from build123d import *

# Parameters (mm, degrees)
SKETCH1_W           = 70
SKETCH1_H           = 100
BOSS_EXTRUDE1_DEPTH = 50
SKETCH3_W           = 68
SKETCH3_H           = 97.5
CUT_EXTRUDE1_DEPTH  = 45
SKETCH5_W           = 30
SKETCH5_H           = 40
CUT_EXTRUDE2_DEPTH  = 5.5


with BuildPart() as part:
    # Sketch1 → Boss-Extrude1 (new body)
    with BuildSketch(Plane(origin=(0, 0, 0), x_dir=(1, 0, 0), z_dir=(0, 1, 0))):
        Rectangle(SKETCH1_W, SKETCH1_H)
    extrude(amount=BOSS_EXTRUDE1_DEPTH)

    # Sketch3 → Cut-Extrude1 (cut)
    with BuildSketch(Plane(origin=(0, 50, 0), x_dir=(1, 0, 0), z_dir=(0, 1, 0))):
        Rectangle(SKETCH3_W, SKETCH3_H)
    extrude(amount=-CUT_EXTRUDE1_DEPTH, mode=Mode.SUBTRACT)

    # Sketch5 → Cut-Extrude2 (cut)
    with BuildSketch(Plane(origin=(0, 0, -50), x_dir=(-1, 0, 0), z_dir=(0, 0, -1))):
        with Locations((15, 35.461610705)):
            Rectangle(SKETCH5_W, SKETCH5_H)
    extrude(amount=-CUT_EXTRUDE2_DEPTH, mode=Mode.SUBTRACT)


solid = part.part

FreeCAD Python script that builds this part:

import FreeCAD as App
import Part
import Sketcher

V = App.Vector
Q = App.Units.Quantity


def add_polygon(sketch, points):
    """Adds a closed chain of lines whose ends are joined by coincident constraints."""
    first, n = sketch.GeometryCount, len(points)
    for a, b in zip(points, points[1:] + points[:1]):
        sketch.addGeometry(Part.LineSegment(App.Vector(*a, 0), App.Vector(*b, 0)), False)
    for i in range(n):
        sketch.addConstraint(Sketcher.Constraint("Coincident", first + i, 2, first + (i + 1) % n, 1))

doc = App.newDocument("Part")
body = doc.addObject("PartDesign::Body", "Body")

# Sketch on XZ plane
sketch1 = body.newObject("Sketcher::SketchObject", "Sketch")
sketch1.AttachmentSupport = (doc.getObject("XZ_Plane"), [""])
sketch1.MapMode = "FlatFace"
add_polygon(sketch1, [(-35, -50), (-35, 50), (35, 50), (35, -50)])  # lines 0-3
sketch1.addConstraint([
    Sketcher.Constraint("Vertical", 0),
    Sketcher.Constraint("Horizontal", 1),
    Sketcher.Constraint("Vertical", 2),
    Sketcher.Constraint("Horizontal", 3),
    Sketcher.Constraint("Symmetric", 0, 2, 2, 2, -1, 1),
    Sketcher.Constraint("DistanceX", 1, 1, 1, 2, Q("70 mm")),
    Sketcher.Constraint("DistanceY", 0, 1, 0, 2, Q("100 mm")),
])
pad1 = body.newObject("PartDesign::Pad", "Pad")
pad1.Profile = sketch1
pad1.Length = 50
pad1.Reversed = True

# Sketch on XZ plane
sketch2 = body.newObject("Sketcher::SketchObject", "Sketch001")
sketch2.AttachmentSupport = (doc.getObject("XZ_Plane"), [""])
sketch2.MapMode = "FlatFace"
sketch2.AttachmentOffset = App.Placement(V(0, 0, -50), App.Rotation())
add_polygon(sketch2, [(-34, -48.75), (-34, 48.75), (34, 48.75), (34, -48.75)])  # lines 0-3
sketch2.addConstraint([
    Sketcher.Constraint("Vertical", 0),
    Sketcher.Constraint("Horizontal", 1),
    Sketcher.Constraint("Vertical", 2),
    Sketcher.Constraint("Horizontal", 3),
    Sketcher.Constraint("Symmetric", 0, 2, 2, 2, -1, 1),
    Sketcher.Constraint("DistanceX", 1, 1, 1, 2, Q("68 mm")),
    Sketcher.Constraint("DistanceY", 0, 1, 0, 2, Q("97.5 mm")),
])
pocket1 = body.newObject("PartDesign::Pocket", "Pocket")
pocket1.Profile = sketch2
pocket1.Length = 45
pocket1.Reversed = True

# Sketch on XY plane
sketch3 = body.newObject("Sketcher::SketchObject", "Sketch002")
sketch3.AttachmentSupport = (doc.getObject("XY_Plane"), [""])
sketch3.MapMode = "FlatFace"
sketch3.AttachmentOffset = App.Placement(V(0, 0, -50), App.Rotation())
add_polygon(sketch3, [(0, 55.461611), (0, 15.461611), (-30, 15.461611), (-30, 55.461611)])  # lines 0-3
sketch3.addConstraint([
    Sketcher.Constraint("Vertical", 0),
    Sketcher.Constraint("Horizontal", 1),
    Sketcher.Constraint("Vertical", 2),
    Sketcher.Constraint("Horizontal", 3),
    Sketcher.Constraint("PointOnObject", 0, 2, -2),
    Sketcher.Constraint("DistanceX", 1, 2, 1, 1, Q("30 mm")),
    Sketcher.Constraint("DistanceY", 0, 2, 0, 1, Q("40 mm")),
    Sketcher.Constraint("DistanceY", -1, 1, 0, 2, Q("15.461611 mm")),
])
pocket2 = body.newObject("PartDesign::Pocket", "Pocket001")
pocket2.Profile = sketch3
pocket2.Length = 5.5
pocket2.Reversed = True

doc.recompute()
